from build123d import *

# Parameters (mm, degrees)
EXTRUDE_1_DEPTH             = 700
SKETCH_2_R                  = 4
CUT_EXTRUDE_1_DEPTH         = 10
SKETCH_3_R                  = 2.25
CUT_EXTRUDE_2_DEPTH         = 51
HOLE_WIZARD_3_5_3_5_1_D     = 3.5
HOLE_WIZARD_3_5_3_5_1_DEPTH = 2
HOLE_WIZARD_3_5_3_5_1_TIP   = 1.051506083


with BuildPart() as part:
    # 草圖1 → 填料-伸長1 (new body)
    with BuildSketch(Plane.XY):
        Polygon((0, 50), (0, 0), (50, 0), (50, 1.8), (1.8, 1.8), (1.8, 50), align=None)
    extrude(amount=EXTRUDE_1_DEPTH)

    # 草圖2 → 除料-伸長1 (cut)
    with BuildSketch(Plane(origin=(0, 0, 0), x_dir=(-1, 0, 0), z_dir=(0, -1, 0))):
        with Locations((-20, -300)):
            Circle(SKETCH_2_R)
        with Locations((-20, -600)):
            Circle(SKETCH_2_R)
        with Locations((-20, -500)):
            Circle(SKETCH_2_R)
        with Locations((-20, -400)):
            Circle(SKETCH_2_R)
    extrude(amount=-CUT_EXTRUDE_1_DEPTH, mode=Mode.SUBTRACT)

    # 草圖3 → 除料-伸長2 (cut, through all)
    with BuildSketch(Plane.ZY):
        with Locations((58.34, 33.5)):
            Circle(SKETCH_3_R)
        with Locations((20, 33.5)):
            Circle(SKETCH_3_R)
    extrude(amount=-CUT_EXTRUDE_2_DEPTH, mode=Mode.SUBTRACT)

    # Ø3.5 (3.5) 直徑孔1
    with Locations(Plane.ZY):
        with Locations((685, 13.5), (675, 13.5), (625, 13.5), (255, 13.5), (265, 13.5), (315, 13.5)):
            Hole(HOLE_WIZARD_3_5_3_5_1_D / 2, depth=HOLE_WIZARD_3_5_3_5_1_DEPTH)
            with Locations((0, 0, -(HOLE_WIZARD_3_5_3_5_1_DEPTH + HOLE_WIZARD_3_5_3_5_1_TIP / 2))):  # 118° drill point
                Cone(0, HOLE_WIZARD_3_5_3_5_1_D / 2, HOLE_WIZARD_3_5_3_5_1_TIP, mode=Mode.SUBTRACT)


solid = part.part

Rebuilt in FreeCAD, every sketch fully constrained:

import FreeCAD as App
import Part
import Sketcher

V = App.Vector

doc = App.newDocument("Part")
body = doc.addObject("PartDesign::Body", "Body")

# Sketch on XY plane
sketch1 = body.newObject("Sketcher::SketchObject", "Sketch")
sketch1.AttachmentSupport = (doc.getObject("XY_Plane"), [""])
sketch1.MapMode = "FlatFace"
sketch1.addGeometry([
    Part.LineSegment(V(0, 50, 0), V(0, 0, 0)),  # 0
    Part.LineSegment(V(0, 0, 0), V(50, 0, 0)),  # 1
    Part.LineSegment(V(50, 0, 0), V(50, 1.8, 0)),  # 2
    Part.LineSegment(V(50, 1.8, 0), V(1.8, 1.8, 0)),  # 3
    Part.LineSegment(V(1.8, 1.8, 0), V(1.8, 50, 0)),  # 4
    Part.LineSegment(V(1.8, 50, 0), V(0, 50, 0)),  # 5
], False)
sketch1.addConstraint([
    Sketcher.Constraint("Coincident", 0, 2, 1, 1),
    Sketcher.Constraint("Coincident", 1, 2, 2, 1),
    Sketcher.Constraint("Coincident", 2, 2, 3, 1),
    Sketcher.Constraint("Coincident", 3, 2, 4, 1),
    Sketcher.Constraint("Coincident", 4, 2, 5, 1),
    Sketcher.Constraint("Coincident", 5, 2, 0, 1),
    Sketcher.Constraint("Vertical", 0),
    Sketcher.Constraint("Horizontal", 1),
    Sketcher.Constraint("Vertical", 2),
    Sketcher.Constraint("Horizontal", 3),
    Sketcher.Constraint("Vertical", 4),
    Sketcher.Constraint("Horizontal", 5),
    Sketcher.Constraint("Coincident", 0, 2, -1, 1),
    Sketcher.Constraint("Equal", 1, 0),
    Sketcher.Constraint("Equal", 5, 2),
    Sketcher.Constraint("DistanceX", 1, 1, 1, 2, 50.0),
    Sketcher.Constraint("DistanceX", 3, 2, 3, 1, 48.2),
])
pad1 = body.newObject("PartDesign::Pad", "Pad")
pad1.Profile = sketch1
pad1.Length = 700

# Sketch on XZ plane
sketch2 = body.newObject("Sketcher::SketchObject", "Sketch001")
sketch2.AttachmentSupport = (doc.getObject("XZ_Plane"), [""])
sketch2.MapMode = "FlatFace"
sketch2.addGeometry([
    Part.Circle(V(20, 300, 0), V(0, 0, 1), 4),
    Part.Circle(V(20, 600, 0), V(0, 0, 1), 4),
    Part.Circle(V(20, 500, 0), V(0, 0, 1), 4),
    Part.Circle(V(20, 400, 0), V(0, 0, 1), 4),
], False)
sketch2.addConstraint([
    Sketcher.Constraint("Equal", 0, 1),
    Sketcher.Constraint("Equal", 1, 2),
    Sketcher.Constraint("Equal", 2, 3),
    Sketcher.Constraint("Vertical", 0, 3, 1, 3),
    Sketcher.Constraint("Vertical", 1, 3, 2, 3),
    Sketcher.Constraint("Vertical", 2, 3, 3, 3),
    Sketcher.Constraint("Diameter", 0, 8.0),
    Sketcher.Constraint("DistanceX", -1, 1, 0, 3, 20.0),
    Sketcher.Constraint("DistanceY", -1, 1, 0, 3, 300.0),
    Sketcher.Constraint("DistanceY", -1, 1, 1, 3, 600.0),
    Sketcher.Constraint("DistanceY", -1, 1, 2, 3, 500.0),
    Sketcher.Constraint("DistanceY", -1, 1, 3, 3, 400.0),
])
pocket1 = body.newObject("PartDesign::Pocket", "Pocket")
pocket1.Profile = sketch2
pocket1.Length = 10

# Sketch on YZ plane
sketch3 = body.newObject("Sketcher::SketchObject", "Sketch002")
sketch3.AttachmentSupport = (doc.getObject("YZ_Plane"), [""])
sketch3.MapMode = "FlatFace"
sketch3.addGeometry([
    Part.Circle(V(33.5, 58.3, 0), V(0, 0, 1), 2.2),
    Part.Circle(V(33.5, 20, 0), V(0, 0, 1), 2.2),
], False)
sketch3.addConstraint([
    Sketcher.Constraint("Equal", 0, 1),
    Sketcher.Constraint("Vertical", 0, 3, 1, 3),
    Sketcher.Constraint("Diameter", 0, 4.5),
    Sketcher.Constraint("DistanceY", -1, 1, 1, 3, 20.0),
    Sketcher.Constraint("DistanceX", -1, 1, 0, 3, 33.5),
    Sketcher.Constraint("DistanceY", -1, 1, 0, 3, 58.34),
])
pocket2 = body.newObject("PartDesign::Pocket", "Pocket001")
pocket2.Profile = sketch3
pocket2.Type = "ThroughAll"
pocket2.Reversed = True

# Sketch on YZ plane
sketch4 = body.newObject("Sketcher::SketchObject", "Sketch003")
sketch4.AttachmentSupport = (doc.getObject("YZ_Plane"), [""])
sketch4.MapMode = "FlatFace"
sketch4.addGeometry([
    Part.Circle(V(13.5, 685, 0), V(0, 0, 1), 1.8),  # 0
    Part.Circle(V(13.5, 675, 0), V(0, 0, 1), 1.8),  # 1
    Part.Circle(V(13.5, 625, 0), V(0, 0, 1), 1.8),  # 2
    Part.Circle(V(13.5, 255, 0), V(0, 0, 1), 1.8),  # 3
    Part.Circle(V(13.5, 265, 0), V(0, 0, 1), 1.8),  # 4
    Part.Circle(V(13.5, 315, 0), V(0, 0, 1), 1.8),  # 5
], False)
sketch4.addConstraint([
    Sketcher.Constraint("Equal", 0, 1),
    Sketcher.Constraint("Equal", 1, 2),
    Sketcher.Constraint("Equal", 2, 3),
    Sketcher.Constraint("Equal", 3, 4),
    Sketcher.Constraint("Equal", 4, 5),
    Sketcher.Constraint("Vertical", 0, 3, 1, 3),
    Sketcher.Constraint("Vertical", 1, 3, 2, 3),
    Sketcher.Constraint("Vertical", 2, 3, 3, 3),
    Sketcher.Constraint("Vertical", 3, 3, 4, 3),
    Sketcher.Constraint("Vertical", 4, 3, 5, 3),
    Sketcher.Constraint("Diameter", 0, 3.5),
    Sketcher.Constraint("DistanceY", -1, 1, 0, 3, 685.0),
    Sketcher.Constraint("DistanceY", -1, 1, 1, 3, 675.0),
    Sketcher.Constraint("DistanceY", -1, 1, 2, 3, 625.0),
    Sketcher.Constraint("DistanceY", -1, 1, 3, 3, 255.0),
    Sketcher.Constraint("DistanceY", -1, 1, 4, 3, 265.0),
    Sketcher.Constraint("DistanceY", -1, 1, 5, 3, 315.0),
    Sketcher.Constraint("DistanceX", -1, 1, 0, 3, 13.5),
])
doc.recompute()
hole = body.newObject("PartDesign::Hole", "Hole")
hole.Profile = sketch4
hole.ThreadType = "None"
hole.Diameter = 3.5
hole.DepthType = "Dimension"
hole.Depth = 2
hole.DrillPoint = "Angled"
hole.DrillPointAngle = 118
hole.Reversed = True

doc.recompute()
